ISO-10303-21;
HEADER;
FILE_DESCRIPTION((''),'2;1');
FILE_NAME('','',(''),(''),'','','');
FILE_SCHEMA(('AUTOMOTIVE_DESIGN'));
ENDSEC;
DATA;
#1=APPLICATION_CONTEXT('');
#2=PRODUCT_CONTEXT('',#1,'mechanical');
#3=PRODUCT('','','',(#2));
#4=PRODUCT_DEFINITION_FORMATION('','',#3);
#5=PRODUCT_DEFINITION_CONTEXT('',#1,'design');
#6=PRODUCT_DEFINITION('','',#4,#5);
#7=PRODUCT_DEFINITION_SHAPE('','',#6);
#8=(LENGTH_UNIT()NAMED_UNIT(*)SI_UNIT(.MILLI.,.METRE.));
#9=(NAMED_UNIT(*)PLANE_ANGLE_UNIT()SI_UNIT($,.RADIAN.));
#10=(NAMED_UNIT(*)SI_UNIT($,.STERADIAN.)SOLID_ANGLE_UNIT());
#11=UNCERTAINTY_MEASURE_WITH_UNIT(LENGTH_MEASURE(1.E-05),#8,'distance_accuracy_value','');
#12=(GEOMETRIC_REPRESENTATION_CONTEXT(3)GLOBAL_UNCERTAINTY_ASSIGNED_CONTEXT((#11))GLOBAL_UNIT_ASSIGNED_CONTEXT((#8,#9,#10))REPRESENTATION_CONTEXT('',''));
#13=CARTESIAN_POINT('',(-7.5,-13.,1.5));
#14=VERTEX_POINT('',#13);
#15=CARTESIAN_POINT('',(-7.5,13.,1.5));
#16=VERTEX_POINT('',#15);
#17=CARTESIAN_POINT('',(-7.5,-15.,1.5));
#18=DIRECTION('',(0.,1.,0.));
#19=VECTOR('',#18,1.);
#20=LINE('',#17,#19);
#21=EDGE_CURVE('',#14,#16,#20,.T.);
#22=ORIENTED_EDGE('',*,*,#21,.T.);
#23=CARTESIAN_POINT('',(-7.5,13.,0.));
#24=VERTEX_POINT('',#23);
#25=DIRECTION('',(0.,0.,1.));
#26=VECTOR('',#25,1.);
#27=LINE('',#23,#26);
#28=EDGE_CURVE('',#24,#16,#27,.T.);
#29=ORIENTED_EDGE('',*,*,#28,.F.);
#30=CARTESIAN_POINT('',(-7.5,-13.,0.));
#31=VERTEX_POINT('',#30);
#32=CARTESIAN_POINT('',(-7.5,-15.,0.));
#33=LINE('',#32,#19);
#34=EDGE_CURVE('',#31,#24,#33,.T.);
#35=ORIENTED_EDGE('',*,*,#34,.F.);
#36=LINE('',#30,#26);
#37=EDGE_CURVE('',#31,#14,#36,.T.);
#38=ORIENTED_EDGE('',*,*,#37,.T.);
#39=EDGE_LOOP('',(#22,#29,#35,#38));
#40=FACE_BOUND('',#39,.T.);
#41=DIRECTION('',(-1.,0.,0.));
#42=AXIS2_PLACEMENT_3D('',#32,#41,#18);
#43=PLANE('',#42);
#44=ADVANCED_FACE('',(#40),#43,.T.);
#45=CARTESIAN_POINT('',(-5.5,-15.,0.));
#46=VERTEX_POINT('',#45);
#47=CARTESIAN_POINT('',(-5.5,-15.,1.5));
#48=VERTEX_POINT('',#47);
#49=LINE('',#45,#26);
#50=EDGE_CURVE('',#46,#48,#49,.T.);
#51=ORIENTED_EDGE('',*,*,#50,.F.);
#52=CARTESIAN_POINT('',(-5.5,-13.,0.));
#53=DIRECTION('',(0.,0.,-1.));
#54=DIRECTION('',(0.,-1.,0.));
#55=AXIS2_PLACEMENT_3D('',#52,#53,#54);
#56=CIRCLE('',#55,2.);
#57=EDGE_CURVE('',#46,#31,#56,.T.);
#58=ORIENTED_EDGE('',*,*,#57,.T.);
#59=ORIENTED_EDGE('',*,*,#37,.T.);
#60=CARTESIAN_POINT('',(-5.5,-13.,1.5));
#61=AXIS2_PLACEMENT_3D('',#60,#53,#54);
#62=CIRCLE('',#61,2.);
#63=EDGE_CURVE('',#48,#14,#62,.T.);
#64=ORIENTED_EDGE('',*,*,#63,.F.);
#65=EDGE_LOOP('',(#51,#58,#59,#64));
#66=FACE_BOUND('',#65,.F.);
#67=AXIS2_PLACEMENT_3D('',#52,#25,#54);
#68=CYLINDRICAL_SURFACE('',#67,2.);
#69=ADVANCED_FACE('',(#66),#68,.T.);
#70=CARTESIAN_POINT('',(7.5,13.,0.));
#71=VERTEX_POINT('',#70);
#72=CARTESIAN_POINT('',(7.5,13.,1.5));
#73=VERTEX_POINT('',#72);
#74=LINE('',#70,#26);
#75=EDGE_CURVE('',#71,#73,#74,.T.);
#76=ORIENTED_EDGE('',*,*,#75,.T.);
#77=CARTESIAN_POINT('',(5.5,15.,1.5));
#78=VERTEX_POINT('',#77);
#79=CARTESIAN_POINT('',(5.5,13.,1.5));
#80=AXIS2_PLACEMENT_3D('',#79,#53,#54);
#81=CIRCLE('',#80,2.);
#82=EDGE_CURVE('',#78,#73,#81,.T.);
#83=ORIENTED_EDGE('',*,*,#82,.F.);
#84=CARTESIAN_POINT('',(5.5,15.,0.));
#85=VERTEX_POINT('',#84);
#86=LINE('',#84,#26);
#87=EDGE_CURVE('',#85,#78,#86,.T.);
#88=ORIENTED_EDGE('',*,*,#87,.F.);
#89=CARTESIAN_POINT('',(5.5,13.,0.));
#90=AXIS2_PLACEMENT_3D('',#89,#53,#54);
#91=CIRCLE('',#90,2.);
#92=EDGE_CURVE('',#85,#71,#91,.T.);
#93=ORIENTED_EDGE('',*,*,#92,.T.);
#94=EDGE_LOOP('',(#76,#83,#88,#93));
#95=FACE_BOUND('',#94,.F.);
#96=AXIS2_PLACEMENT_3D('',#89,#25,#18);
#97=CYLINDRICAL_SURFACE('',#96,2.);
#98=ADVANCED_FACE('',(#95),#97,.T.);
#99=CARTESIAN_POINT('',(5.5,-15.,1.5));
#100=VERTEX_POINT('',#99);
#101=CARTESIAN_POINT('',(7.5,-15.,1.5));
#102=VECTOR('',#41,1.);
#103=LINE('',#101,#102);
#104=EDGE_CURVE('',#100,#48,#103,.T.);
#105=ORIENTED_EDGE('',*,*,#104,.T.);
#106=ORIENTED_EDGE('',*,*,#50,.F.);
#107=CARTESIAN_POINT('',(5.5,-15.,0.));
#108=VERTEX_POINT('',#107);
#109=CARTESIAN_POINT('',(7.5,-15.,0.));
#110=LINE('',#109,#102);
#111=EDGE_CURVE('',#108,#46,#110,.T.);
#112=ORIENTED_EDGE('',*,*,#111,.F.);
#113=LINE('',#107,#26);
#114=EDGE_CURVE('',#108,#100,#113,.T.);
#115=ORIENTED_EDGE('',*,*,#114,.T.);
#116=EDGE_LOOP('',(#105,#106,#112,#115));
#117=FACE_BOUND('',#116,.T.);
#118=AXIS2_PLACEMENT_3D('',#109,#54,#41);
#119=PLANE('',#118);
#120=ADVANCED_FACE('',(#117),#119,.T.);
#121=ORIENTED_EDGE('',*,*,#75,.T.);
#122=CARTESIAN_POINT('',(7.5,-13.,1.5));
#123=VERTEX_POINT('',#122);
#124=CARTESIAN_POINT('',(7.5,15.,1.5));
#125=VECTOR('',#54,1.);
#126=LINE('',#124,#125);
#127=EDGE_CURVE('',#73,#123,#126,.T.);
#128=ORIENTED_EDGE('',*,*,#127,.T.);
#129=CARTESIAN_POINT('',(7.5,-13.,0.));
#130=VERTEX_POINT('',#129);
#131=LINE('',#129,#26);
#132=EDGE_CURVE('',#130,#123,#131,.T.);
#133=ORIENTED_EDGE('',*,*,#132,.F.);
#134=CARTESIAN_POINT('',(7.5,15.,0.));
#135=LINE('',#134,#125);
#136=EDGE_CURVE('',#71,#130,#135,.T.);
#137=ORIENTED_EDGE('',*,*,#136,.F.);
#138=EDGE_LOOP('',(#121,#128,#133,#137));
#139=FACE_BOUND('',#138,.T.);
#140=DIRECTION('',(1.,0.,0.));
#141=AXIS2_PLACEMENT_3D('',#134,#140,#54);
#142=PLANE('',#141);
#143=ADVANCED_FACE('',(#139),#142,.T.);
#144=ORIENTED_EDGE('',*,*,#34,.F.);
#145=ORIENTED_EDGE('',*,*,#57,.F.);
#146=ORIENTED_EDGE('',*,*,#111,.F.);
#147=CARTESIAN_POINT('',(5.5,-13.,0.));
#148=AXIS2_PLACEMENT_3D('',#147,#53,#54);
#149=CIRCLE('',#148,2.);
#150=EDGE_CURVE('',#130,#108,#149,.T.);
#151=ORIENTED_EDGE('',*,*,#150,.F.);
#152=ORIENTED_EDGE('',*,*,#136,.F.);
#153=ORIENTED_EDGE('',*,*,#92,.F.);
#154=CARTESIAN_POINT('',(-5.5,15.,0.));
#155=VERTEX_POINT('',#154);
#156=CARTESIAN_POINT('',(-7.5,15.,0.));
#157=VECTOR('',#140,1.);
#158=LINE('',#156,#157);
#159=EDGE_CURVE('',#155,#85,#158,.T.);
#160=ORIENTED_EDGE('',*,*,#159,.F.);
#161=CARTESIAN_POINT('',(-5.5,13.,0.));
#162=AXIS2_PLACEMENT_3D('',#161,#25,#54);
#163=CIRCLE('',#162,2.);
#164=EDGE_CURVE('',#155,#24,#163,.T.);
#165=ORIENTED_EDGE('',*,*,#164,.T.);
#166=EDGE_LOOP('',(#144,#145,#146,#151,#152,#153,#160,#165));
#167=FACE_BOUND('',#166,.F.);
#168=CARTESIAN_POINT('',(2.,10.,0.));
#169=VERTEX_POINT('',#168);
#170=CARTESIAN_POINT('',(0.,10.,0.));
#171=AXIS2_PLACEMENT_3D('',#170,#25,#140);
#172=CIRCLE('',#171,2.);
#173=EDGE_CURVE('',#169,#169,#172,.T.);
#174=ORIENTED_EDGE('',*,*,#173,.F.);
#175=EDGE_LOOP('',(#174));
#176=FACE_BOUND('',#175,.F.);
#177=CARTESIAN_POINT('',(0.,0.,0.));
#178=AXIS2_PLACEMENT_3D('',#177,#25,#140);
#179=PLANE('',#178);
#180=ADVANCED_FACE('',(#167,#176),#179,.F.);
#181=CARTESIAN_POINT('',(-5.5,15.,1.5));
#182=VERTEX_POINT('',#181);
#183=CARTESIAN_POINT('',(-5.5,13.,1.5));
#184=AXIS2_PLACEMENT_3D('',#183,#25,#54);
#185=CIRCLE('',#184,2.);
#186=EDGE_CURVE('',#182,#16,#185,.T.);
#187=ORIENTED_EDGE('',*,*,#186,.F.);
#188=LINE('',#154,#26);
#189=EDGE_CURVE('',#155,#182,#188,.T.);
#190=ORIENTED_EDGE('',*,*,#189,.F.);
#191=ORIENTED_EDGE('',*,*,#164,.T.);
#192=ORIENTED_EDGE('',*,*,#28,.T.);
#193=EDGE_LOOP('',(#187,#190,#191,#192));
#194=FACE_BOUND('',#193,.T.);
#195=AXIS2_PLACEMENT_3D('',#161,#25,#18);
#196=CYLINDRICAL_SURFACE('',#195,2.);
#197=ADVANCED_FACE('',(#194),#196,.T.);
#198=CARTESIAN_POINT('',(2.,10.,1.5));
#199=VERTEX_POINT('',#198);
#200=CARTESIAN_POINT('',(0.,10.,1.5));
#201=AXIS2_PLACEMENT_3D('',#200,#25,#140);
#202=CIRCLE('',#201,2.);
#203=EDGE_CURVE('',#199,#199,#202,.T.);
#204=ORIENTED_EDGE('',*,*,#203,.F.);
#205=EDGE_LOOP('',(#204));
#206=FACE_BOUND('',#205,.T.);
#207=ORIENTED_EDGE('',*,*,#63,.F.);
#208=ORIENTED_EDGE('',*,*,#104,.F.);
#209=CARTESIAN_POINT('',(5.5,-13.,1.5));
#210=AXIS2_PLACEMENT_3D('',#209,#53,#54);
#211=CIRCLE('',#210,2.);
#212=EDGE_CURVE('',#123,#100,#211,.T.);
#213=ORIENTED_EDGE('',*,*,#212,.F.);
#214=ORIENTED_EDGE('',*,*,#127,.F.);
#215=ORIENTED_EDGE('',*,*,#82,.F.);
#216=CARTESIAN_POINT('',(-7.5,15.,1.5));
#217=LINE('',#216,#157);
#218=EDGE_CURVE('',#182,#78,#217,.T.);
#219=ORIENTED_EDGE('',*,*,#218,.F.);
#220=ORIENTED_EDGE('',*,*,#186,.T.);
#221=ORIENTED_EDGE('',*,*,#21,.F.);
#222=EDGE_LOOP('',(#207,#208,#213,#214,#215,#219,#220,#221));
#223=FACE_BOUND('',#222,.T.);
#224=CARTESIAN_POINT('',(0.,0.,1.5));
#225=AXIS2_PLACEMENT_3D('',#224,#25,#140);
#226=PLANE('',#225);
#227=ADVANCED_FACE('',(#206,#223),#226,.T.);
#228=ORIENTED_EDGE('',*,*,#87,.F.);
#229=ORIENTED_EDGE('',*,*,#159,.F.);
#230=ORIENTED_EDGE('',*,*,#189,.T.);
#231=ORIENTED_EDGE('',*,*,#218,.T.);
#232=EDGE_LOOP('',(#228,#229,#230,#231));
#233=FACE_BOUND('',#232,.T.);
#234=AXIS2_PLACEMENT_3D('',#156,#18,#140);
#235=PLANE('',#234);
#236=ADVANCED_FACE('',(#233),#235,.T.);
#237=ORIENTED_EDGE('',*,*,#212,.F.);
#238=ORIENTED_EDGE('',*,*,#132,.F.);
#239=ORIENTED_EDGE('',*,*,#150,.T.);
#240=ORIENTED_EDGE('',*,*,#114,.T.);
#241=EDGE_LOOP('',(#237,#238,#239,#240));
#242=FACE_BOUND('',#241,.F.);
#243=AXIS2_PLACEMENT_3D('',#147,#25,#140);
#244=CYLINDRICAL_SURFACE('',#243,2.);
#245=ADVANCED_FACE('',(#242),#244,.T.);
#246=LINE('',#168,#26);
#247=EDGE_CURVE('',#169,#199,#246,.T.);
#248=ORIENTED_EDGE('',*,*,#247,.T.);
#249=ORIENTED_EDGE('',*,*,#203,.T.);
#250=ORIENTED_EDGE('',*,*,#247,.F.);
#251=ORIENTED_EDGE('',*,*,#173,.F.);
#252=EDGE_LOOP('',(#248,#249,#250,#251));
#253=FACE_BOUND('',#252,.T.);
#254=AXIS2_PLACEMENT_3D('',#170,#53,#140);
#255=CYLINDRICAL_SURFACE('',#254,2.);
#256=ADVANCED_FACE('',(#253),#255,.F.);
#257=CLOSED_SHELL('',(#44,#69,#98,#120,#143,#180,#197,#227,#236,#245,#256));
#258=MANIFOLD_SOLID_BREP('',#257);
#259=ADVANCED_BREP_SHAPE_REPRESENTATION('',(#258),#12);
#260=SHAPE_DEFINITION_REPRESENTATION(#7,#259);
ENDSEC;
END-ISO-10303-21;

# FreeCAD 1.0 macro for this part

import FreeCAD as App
import Part
import Sketcher

V = App.Vector
Q = App.Units.Quantity


def edges_at(feature, points):
    """Names of the edges that pass closest to the given points."""
    edges = feature.Shape.Edges
    near = lambda p: min(range(len(edges)), key=lambda i: edges[i].distToShape(Part.Vertex(*p))[0])
    return sorted({f"Edge{near(p) + 1}" for p in points})

doc = App.newDocument("Part")
params = doc.addObject("Spreadsheet::Sheet", "Params")
for row, (alias, value) in enumerate([
    ("sketch1_diameter", "4 mm"),
    ("sketch1_width", "15 mm"),
    ("sketch1_height", "30 mm"),
    ("pad1_length", "1.5 mm"),
    ("fillet_radius", "2 mm"),
], start=1):
    params.set(f"A{row}", alias)
    params.set(f"B{row}", "=" + value)
    params.setAlias(f"B{row}", alias)

body = doc.addObject("PartDesign::Body", "Body")

sketch1 = doc.addObject("Sketcher::SketchObject", "Sketch")
body.addObject(sketch1)
sketch1.AttachmentSupport = (doc.XY_Plane, [""])
sketch1.MapMode = "FlatFace"
sketch1.addGeometry([
    Part.LineSegment(V(7.5, 15, 0), V(-7.5, 15, 0)),
    Part.LineSegment(V(-7.5, 15, 0), V(-7.5, -15, 0)),
    Part.LineSegment(V(-7.5, -15, 0), V(7.5, -15, 0)),
    Part.LineSegment(V(7.5, -15, 0), V(7.5, 15, 0)),
    Part.Circle(V(0, 10, 0), V(0, 0, 1), 2),
], False)
sketch1.addConstraint([
    Sketcher.Constraint("Coincident", 0, 2, 1, 1),
    Sketcher.Constraint("Coincident", 1, 2, 2, 1),
    Sketcher.Constraint("Coincident", 2, 2, 3, 1),
    Sketcher.Constraint("Coincident", 3, 2, 0, 1),
    Sketcher.Constraint("Horizontal", 0),
    Sketcher.Constraint("Vertical", 1),
    Sketcher.Constraint("Horizontal", 2),
    Sketcher.Constraint("Vertical", 3),
    Sketcher.Constraint("Symmetric", 0, 2, 2, 2, -1, 1),
    Sketcher.Constraint("PointOnObject", 4, 3, -2),
    Sketcher.Constraint("Diameter", 4, Q("4 mm")),
    Sketcher.Constraint("DistanceX", 0, 2, 0, 1, Q("15 mm")),
    Sketcher.Constraint("DistanceY", 1, 2, 1, 1, Q("30 mm")),
    Sketcher.Constraint("DistanceY", -1, 1, 4, 3, Q("10 mm")),
])
sketch1.setExpression("Constraints[10]", "Params.sketch1_diameter")
sketch1.setExpression("Constraints[11]", "Params.sketch1_width")
sketch1.setExpression("Constraints[12]", "Params.sketch1_height")
pad1 = doc.addObject("PartDesign::Pad", "Pad")
body.addObject(pad1)
pad1.Profile = sketch1
pad1.setExpression("Length", "Params.pad1_length")
doc.recompute()

fillet = doc.addObject("PartDesign::Fillet", "Fillet")
body.addObject(fillet)
fillet.Base = (pad1, edges_at(pad1, [
    (-7.5, 15, 0.75),
    (7.5, 15, 0.75),
    (-7.5, -15, 0.75),
    (7.5, -15, 0.75),
]))
fillet.setExpression("Radius", "Params.fillet_radius")

doc.recompute()
